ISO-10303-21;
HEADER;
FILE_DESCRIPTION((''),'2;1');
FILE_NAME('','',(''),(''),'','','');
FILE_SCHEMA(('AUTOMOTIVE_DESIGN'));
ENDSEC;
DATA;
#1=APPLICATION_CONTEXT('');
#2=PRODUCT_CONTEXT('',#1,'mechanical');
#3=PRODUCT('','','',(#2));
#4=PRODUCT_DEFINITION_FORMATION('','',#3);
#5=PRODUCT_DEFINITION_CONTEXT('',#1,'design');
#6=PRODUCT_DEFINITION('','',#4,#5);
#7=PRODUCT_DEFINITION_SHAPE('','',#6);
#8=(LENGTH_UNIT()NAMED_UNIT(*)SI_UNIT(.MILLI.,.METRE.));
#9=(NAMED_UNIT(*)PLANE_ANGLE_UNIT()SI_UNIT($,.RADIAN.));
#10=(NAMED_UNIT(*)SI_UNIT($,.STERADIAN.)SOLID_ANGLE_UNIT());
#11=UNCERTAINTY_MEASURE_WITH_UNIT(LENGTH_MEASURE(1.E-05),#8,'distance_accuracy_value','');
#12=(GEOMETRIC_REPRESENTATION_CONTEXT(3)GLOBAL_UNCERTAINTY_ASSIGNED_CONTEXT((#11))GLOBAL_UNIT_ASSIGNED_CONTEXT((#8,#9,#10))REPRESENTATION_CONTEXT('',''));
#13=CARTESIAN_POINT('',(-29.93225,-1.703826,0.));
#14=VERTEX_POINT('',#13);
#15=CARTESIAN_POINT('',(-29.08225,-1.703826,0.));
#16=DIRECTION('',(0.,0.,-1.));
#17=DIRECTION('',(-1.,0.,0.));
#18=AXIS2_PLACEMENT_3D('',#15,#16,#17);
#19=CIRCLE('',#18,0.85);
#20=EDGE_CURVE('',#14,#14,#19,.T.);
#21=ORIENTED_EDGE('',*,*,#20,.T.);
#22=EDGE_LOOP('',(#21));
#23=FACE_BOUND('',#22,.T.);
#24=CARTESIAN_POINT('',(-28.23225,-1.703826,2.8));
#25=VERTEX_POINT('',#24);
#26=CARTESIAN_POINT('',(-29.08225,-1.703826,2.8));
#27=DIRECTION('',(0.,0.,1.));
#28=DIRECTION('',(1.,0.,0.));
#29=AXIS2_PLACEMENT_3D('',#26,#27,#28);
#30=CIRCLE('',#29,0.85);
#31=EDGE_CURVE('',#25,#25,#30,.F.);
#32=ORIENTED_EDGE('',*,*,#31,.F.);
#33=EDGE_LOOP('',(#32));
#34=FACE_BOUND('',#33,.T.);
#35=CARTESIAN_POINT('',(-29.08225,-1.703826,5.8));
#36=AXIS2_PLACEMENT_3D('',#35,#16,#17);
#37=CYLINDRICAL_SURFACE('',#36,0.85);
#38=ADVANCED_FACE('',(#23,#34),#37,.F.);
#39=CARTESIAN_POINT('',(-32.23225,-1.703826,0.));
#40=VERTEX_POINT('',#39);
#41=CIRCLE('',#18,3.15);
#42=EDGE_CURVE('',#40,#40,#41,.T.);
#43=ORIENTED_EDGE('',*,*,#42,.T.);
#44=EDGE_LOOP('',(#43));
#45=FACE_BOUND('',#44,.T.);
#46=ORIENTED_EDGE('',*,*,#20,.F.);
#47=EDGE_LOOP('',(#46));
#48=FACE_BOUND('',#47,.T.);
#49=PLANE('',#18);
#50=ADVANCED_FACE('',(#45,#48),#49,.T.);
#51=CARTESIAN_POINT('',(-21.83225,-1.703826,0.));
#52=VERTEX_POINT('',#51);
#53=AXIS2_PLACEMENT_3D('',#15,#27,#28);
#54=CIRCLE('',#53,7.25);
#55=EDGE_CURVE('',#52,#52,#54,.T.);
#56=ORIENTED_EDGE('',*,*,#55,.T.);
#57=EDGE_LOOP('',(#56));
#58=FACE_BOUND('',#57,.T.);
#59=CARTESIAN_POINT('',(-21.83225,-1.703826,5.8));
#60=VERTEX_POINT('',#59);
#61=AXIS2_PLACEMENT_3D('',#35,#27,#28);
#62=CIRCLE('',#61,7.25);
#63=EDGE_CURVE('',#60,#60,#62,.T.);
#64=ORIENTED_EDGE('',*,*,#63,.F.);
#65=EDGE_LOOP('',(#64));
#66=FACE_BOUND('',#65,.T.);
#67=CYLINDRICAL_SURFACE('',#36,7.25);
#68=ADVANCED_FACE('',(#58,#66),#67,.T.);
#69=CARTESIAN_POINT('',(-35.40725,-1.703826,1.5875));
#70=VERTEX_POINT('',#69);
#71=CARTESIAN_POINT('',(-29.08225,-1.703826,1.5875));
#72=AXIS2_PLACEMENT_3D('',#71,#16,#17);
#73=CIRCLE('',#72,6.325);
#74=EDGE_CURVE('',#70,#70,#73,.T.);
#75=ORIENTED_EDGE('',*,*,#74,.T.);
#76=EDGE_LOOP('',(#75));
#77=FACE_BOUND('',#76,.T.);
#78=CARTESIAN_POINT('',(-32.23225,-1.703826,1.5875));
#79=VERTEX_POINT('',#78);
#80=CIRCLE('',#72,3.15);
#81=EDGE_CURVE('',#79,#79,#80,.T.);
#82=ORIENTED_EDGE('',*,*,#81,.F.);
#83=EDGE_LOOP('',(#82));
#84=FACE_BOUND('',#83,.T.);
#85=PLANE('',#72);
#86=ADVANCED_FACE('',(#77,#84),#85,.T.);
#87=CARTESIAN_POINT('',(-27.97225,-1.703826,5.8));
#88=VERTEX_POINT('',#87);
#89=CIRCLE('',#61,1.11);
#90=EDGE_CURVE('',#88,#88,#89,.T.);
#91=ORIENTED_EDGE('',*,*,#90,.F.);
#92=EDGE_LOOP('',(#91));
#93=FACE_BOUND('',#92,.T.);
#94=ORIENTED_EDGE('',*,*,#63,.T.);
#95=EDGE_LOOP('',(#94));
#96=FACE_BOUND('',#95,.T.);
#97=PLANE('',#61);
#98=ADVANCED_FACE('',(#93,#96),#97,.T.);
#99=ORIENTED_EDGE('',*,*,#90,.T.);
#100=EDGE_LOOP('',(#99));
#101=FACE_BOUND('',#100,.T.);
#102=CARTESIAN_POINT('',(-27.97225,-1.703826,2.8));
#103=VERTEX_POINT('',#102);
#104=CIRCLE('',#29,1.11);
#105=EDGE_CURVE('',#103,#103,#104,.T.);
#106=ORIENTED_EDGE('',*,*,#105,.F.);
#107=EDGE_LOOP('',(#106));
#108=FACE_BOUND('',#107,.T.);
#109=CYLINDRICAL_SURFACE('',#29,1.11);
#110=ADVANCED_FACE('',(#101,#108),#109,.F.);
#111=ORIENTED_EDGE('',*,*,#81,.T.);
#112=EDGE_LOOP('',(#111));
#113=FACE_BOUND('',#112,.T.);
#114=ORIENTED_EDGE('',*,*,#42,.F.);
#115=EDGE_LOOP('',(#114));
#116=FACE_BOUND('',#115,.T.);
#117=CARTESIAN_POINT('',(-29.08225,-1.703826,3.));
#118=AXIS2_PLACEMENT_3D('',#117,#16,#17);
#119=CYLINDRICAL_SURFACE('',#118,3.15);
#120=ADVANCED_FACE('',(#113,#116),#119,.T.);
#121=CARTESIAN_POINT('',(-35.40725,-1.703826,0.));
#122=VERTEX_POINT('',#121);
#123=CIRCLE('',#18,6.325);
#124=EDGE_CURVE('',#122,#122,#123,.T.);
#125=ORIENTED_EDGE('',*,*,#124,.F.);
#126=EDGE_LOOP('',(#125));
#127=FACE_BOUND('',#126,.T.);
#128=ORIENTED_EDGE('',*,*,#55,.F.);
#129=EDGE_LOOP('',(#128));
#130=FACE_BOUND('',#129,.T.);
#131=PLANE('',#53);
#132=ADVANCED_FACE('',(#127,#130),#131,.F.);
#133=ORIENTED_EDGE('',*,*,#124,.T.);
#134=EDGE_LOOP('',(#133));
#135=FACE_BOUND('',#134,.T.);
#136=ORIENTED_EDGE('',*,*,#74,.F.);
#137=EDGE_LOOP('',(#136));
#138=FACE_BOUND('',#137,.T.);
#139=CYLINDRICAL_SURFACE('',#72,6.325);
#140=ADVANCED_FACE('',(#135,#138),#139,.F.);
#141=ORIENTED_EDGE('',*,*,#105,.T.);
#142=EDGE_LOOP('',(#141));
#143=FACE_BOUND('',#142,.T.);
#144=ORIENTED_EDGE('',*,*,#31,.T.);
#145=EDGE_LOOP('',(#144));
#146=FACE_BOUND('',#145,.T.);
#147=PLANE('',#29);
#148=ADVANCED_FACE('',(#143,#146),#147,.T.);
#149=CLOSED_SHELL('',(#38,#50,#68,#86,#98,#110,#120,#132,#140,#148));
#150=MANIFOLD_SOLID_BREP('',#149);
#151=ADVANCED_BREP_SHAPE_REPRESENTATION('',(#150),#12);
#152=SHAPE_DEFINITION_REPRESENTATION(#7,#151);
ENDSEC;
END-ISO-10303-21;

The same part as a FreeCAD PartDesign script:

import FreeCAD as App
import Part
import Sketcher
from FreeCAD import Vector

doc = App.newDocument("Part")
body = doc.addObject("PartDesign::Body", "Body")

# Sketch on XY plane
sketch1 = body.newObject("Sketcher::SketchObject", "Sketch")
sketch1.AttachmentSupport = (doc.getObject("XY_Plane"), [""])
sketch1.MapMode = "FlatFace"
sketch1.addGeometry(Part.Circle(Vector(-29.08225, -1.703826, 0), Vector(0, 0, 1), 7.25), False)
sketch1.addConstraint([
    Sketcher.Constraint("Diameter", 0, 14.5),
    Sketcher.Constraint("DistanceX", 0, 3, -1, 1, 29.08225),
    Sketcher.Constraint("DistanceY", 0, 3, -1, 1, 1.703826),
])
pad1 = body.newObject("PartDesign::Pad", "Pad")
pad1.Profile = sketch1
pad1.Length = 5.8

# Sketch on XY plane
sketch2 = body.newObject("Sketcher::SketchObject", "Sketch001")
sketch2.AttachmentSupport = (doc.getObject("XY_Plane"), [""])
sketch2.MapMode = "FlatFace"
sketch2.addGeometry(Part.Circle(Vector(-29.08225, -1.703826, 0), Vector(0, 0, 1), 6.325), False)
sketch2.addConstraint([
    Sketcher.Constraint("Diameter", 0, 12.65),
    Sketcher.Constraint("DistanceX", 0, 3, -1, 1, 29.08225),
    Sketcher.Constraint("DistanceY", 0, 3, -1, 1, 1.703826),
])
pocket1 = body.newObject("PartDesign::Pocket", "Pocket")
pocket1.Profile = sketch2
pocket1.Length = 1.5875
pocket1.Reversed = True

# Sketch on XY plane
sketch3 = body.newObject("Sketcher::SketchObject", "Sketch002")
sketch3.AttachmentSupport = (doc.getObject("XY_Plane"), [""])
sketch3.MapMode = "FlatFace"
sketch3.AttachmentOffset = App.Placement(Vector(0, 0, 1.5875), App.Rotation())
sketch3.addGeometry(Part.Circle(Vector(-29.08225, -1.703826, 0), Vector(0, 0, 1), 1), False)
sketch3.addConstraint([
    Sketcher.Constraint("Diameter", 0, 2.0),
    Sketcher.Constraint("DistanceX", 0, 3, -1, 1, 29.08225),
    Sketcher.Constraint("DistanceY", 0, 3, -1, 1, 1.703826),
])
pad2 = body.newObject("PartDesign::Pad", "Pad001")
pad2.Profile = sketch3
pad2.Length = 1.5875
pad2.Reversed = True

# Sketch on XY plane
sketch4 = body.newObject("Sketcher::SketchObject", "Sketch003")
sketch4.AttachmentSupport = (doc.getObject("XY_Plane"), [""])
sketch4.MapMode = "FlatFace"
sketch4.addGeometry(Part.Circle(Vector(-29.08225, -1.703826, 0), Vector(0, 0, 1), 3.15), False)
sketch4.addConstraint([
    Sketcher.Constraint("Diameter", 0, 6.3),
    Sketcher.Constraint("DistanceX", 0, 3, -1, 1, 29.08225),
    Sketcher.Constraint("DistanceY", 0, 3, -1, 1, 1.703826),
])
pad3 = body.newObject("PartDesign::Pad", "Pad002")
pad3.Profile = sketch4
pad3.Length = 3

# Sketch on XY plane
sketch5 = body.newObject("Sketcher::SketchObject", "Sketch004")
sketch5.AttachmentSupport = (doc.getObject("XY_Plane"), [""])
sketch5.MapMode = "FlatFace"
sketch5.addGeometry(Part.Circle(Vector(-29.08225, -1.703826, 0), Vector(0, 0, 1), 0.85), False)
sketch5.addConstraint([
    Sketcher.Constraint("Diameter", 0, 1.7),
    Sketcher.Constraint("DistanceX", 0, 3, -1, 1, 29.08225),
    Sketcher.Constraint("DistanceY", 0, 3, -1, 1, 1.703826),
])
pocket2 = body.newObject("PartDesign::Pocket", "Pocket001")
pocket2.Profile = sketch5
pocket2.Type = "ThroughAll"
pocket2.Reversed = True

# Sketch on XY plane
sketch6 = body.newObject("Sketcher::SketchObject", "Sketch005")
sketch6.AttachmentSupport = (doc.getObject("XY_Plane"), [""])
sketch6.MapMode = "FlatFace"
sketch6.AttachmentOffset = App.Placement(Vector(0, 0, 5.8), App.Rotation())
sketch6.addGeometry(Part.Circle(Vector(-29.08225, -1.703826, 0), Vector(0, 0, 1), 1.11), False)
sketch6.addConstraint([
    Sketcher.Constraint("Diameter", 0, 2.22),
    Sketcher.Constraint("DistanceX", 0, 3, -1, 1, 29.08225),
    Sketcher.Constraint("DistanceY", 0, 3, -1, 1, 1.703826),
])
pocket3 = body.newObject("PartDesign::Pocket", "Pocket002")
pocket3.Profile = sketch6
pocket3.Length = 3

doc.recompute()
